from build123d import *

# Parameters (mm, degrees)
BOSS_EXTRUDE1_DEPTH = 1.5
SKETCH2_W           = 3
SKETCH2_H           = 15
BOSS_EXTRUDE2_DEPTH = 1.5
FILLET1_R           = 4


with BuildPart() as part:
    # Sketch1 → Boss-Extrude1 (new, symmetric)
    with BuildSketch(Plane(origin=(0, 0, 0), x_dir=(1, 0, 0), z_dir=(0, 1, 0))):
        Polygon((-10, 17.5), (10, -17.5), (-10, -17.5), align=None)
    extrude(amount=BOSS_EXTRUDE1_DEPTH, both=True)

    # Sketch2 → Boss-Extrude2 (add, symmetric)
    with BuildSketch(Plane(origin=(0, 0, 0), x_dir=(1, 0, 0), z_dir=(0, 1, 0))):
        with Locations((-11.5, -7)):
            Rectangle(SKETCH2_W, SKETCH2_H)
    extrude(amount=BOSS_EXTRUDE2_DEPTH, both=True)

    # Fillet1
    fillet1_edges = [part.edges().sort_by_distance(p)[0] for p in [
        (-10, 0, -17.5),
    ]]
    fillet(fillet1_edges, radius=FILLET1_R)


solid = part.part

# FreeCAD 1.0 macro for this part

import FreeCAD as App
import Part
import Sketcher

V = App.Vector


def edges_at(feature, points):
    """Names of the edges that pass closest to the given points."""
    edges = feature.Shape.Edges
    near = lambda p: min(range(len(edges)), key=lambda i: edges[i].distToShape(Part.Vertex(*p))[0])
    return sorted({f"Edge{near(p) + 1}" for p in points})

doc = App.newDocument("Part")
body = doc.addObject("PartDesign::Body", "Body")

sketch1 = body.newObject("Sketcher::SketchObject", "Sketch")
sketch1.AttachmentSupport = (doc.getObject("XZ_Plane"), [""])
sketch1.MapMode = "FlatFace"
sketch1.addGeometry(Part.LineSegment(V(10, 18, 0), V(-10, -18, 0)), False)
sketch1.addGeometry(Part.LineSegment(V(-10, -18, 0), V(-10, 18, 0)), False)
sketch1.addGeometry(Part.LineSegment(V(-10, 18, 0), V(10, 18, 0)), False)
sketch1.addConstraint(Sketcher.Constraint("Coincident", 0, 2, 1, 1))
sketch1.addConstraint(Sketcher.Constraint("Coincident", 1, 2, 2, 1))
sketch1.addConstraint(Sketcher.Constraint("Coincident", 2, 2, 0, 1))
sketch1.addConstraint(Sketcher.Constraint("Vertical", 1))
sketch1.addConstraint(Sketcher.Constraint("Horizontal", 2))
sketch1.addConstraint(Sketcher.Constraint("Symmetric", 0, 2, 2, 2, -1, 1))
sketch1.addConstraint(Sketcher.Constraint("DistanceX", 2, 1, 2, 2, 20.0))
sketch1.addConstraint(Sketcher.Constraint("DistanceY", 1, 1, 1, 2, 35.0))
pad1 = body.newObject("PartDesign::Pad", "Pad")
pad1.Profile = sketch1
pad1.Length = 3
pad1.Midplane = True

sketch2 = body.newObject("Sketcher::SketchObject", "Sketch001")
sketch2.AttachmentSupport = (doc.getObject("XZ_Plane"), [""])
sketch2.MapMode = "FlatFace"
sketch2.addGeometry(Part.LineSegment(V(-13, -0.5, 0), V(-13, 14.5, 0)), False)
sketch2.addGeometry(Part.LineSegment(V(-13, 14.5, 0), V(-10, 14.5, 0)), False)
sketch2.addGeometry(Part.LineSegment(V(-10, 14.5, 0), V(-10, -0.5, 0)), False)
sketch2.addGeometry(Part.LineSegment(V(-10, -0.5, 0), V(-13, -0.5, 0)), False)
sketch2.addConstraint(Sketcher.Constraint("Coincident", 0, 2, 1, 1))
sketch2.addConstraint(Sketcher.Constraint("Coincident", 1, 2, 2, 1))
sketch2.addConstraint(Sketcher.Constraint("Coincident", 2, 2, 3, 1))
sketch2.addConstraint(Sketcher.Constraint("Coincident", 3, 2, 0, 1))
sketch2.addConstraint(Sketcher.Constraint("Vertical", 0))
sketch2.addConstraint(Sketcher.Constraint("Horizontal", 1))
sketch2.addConstraint(Sketcher.Constraint("Vertical", 2))
sketch2.addConstraint(Sketcher.Constraint("Horizontal", 3))
sketch2.addConstraint(Sketcher.Constraint("DistanceX", 1, 1, 1, 2, 3.0))
sketch2.addConstraint(Sketcher.Constraint("DistanceY", 0, 1, 0, 2, 15.0))
sketch2.addConstraint(Sketcher.Constraint("DistanceX", 0, 2, -1, 1, 13.0))
sketch2.addConstraint(Sketcher.Constraint("DistanceY", -1, 1, 0, 2, 14.5))
pad2 = body.newObject("PartDesign::Pad", "Pad001")
pad2.Profile = sketch2
pad2.Length = 3
pad2.Midplane = True
doc.recompute()

fillet = body.newObject("PartDesign::Fillet", "Fillet")
fillet.Base = (pad2, edges_at(pad2, [(-10, 0, -17.5)]))
fillet.Radius = 4

doc.recompute()
